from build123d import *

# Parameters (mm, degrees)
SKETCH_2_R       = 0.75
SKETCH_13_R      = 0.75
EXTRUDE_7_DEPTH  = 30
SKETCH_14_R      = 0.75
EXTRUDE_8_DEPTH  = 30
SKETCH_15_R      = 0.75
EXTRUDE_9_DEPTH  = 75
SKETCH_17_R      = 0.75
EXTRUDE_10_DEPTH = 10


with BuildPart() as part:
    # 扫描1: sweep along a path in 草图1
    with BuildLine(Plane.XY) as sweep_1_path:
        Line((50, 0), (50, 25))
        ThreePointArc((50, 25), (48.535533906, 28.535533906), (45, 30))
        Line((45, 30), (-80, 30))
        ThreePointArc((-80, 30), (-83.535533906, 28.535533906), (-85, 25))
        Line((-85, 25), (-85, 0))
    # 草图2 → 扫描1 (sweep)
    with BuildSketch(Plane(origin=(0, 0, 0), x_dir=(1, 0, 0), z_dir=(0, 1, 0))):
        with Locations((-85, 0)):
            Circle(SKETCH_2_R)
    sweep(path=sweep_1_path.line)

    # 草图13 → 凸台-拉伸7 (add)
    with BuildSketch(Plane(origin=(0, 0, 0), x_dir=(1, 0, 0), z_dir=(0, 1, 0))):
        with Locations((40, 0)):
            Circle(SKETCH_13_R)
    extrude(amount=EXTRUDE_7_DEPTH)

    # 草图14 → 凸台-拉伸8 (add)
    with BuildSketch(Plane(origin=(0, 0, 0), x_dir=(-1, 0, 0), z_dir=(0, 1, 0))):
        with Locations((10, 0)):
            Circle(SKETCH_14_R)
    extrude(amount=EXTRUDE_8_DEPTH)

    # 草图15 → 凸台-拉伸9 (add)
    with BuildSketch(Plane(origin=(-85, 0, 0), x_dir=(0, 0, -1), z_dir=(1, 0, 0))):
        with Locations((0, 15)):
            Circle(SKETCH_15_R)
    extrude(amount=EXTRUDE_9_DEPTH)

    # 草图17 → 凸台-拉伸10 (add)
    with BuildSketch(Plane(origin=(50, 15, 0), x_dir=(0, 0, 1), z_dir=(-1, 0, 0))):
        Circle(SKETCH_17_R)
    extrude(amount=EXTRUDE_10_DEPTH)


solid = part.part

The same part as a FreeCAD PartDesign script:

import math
import FreeCAD as App
import Part
import Sketcher
from FreeCAD import Vector
Q = App.Units.Quantity

doc = App.newDocument("Part")
params = doc.addObject("Spreadsheet::Sheet", "Params")
for row, (alias, value) in enumerate([
    ("sketch1_diameter", "1.5 mm"),
    ("sketch2_radius", "5 mm"),
    ("sketch2_width", "125 mm"),
    ("sketch2_height", "25 mm"),
    ("sketch3_diameter", "1.5 mm"),
    ("pad1_length", "30 mm"),
    ("sketch4_diameter", "1.5 mm"),
    ("pad2_length", "30 mm"),
    ("sketch5_diameter", "1.5 mm"),
    ("pad3_length", "75 mm"),
    ("sketch6_diameter", "1.5 mm"),
    ("pad4_length", "10 mm"),
], start=1):
    params.set(f"A{row}", alias)
    params.set(f"B{row}", "=" + value)
    params.setAlias(f"B{row}", alias)

body = doc.addObject("PartDesign::Body", "Body")

# Sketch on XZ plane
sketch1 = body.newObject("Sketcher::SketchObject", "Sketch")
sketch1.AttachmentSupport = (doc.getObject("XZ_Plane"), [""])
sketch1.MapMode = "FlatFace"
sketch1.addGeometry(Part.Circle(Vector(-85, 0, 0), Vector(0, 0, 1), 0.8), False)
sketch1.addConstraint(Sketcher.Constraint("PointOnObject", 0, 3, -1))
sketch1.addConstraint(Sketcher.Constraint("Diameter", 0, Q("1.5 mm")))
sketch1.addConstraint(Sketcher.Constraint("DistanceX", 0, 3, -1, 1, Q("85 mm")))
sketch1.setExpression("Constraints[1]", "Params.sketch1_diameter")

# Sketch on XY plane
sketch2 = body.newObject("Sketcher::SketchObject", "Sketch001")
sketch2.AttachmentSupport = (doc.getObject("XY_Plane"), [""])
sketch2.MapMode = "FlatFace"
sketch2.addGeometry(Part.LineSegment(Vector(50, 0, 0), Vector(50, 25, 0)), False)
sketch2.addGeometry(Part.ArcOfCircle(Part.Circle(Vector(45, 25, 0), Vector(0, 0, 1), 5), math.radians(0), math.radians(90)), False)
sketch2.addGeometry(Part.LineSegment(Vector(45, 30, 0), Vector(-80, 30, 0)), False)
sketch2.addGeometry(Part.ArcOfCircle(Part.Circle(Vector(-80, 25, 0), Vector(0, 0, 1), 5), math.radians(90), math.radians(180)), False)
sketch2.addGeometry(Part.LineSegment(Vector(-85, 25, 0), Vector(-85, 0, 0)), False)
sketch2.addConstraint(Sketcher.Constraint("Tangent", 0, 2, 1, 1))
sketch2.addConstraint(Sketcher.Constraint("Tangent", 1, 2, 2, 1))
sketch2.addConstraint(Sketcher.Constraint("Tangent", 2, 2, 3, 1))
sketch2.addConstraint(Sketcher.Constraint("Tangent", 3, 2, 4, 1))
sketch2.addConstraint(Sketcher.Constraint("Vertical", 0))
sketch2.addConstraint(Sketcher.Constraint("Horizontal", 2))
sketch2.addConstraint(Sketcher.Constraint("Vertical", 4))
sketch2.addConstraint(Sketcher.Constraint("Equal", 1, 3))
sketch2.addConstraint(Sketcher.Constraint("PointOnObject", 0, 1, -1))
sketch2.addConstraint(Sketcher.Constraint("PointOnObject", 4, 2, -1))
sketch2.addConstraint(Sketcher.Constraint("Radius", 1, Q("5 mm")))
sketch2.addConstraint(Sketcher.Constraint("DistanceX", 2, 2, 2, 1, Q("125 mm")))
sketch2.addConstraint(Sketcher.Constraint("DistanceY", 0, 1, 0, 2, Q("25 mm")))
sketch2.addConstraint(Sketcher.Constraint("DistanceX", -1, 1, 1, 3, Q("45 mm")))
sketch2.setExpression("Constraints[10]", "Params.sketch2_radius")
sketch2.setExpression("Constraints[11]", "Params.sketch2_width")
sketch2.setExpression("Constraints[12]", "Params.sketch2_height")
doc.recompute()

additivepipe = body.newObject("PartDesign::AdditivePipe", "AdditivePipe")
additivepipe.Profile = sketch1
additivepipe.Spine = (sketch2, ["Edge1", "Edge2", "Edge3", "Edge4", "Edge5"])

# Sketch on XZ plane
sketch3 = body.newObject("Sketcher::SketchObject", "Sketch002")
sketch3.AttachmentSupport = (doc.getObject("XZ_Plane"), [""])
sketch3.MapMode = "FlatFace"
sketch3.addGeometry(Part.Circle(Vector(40, 0, 0), Vector(0, 0, 1), 0.8), False)
sketch3.addConstraint(Sketcher.Constraint("PointOnObject", 0, 3, -1))
sketch3.addConstraint(Sketcher.Constraint("Diameter", 0, Q("1.5 mm")))
sketch3.addConstraint(Sketcher.Constraint("DistanceX", -1, 1, 0, 3, Q("40 mm")))
sketch3.setExpression("Constraints[1]", "Params.sketch3_diameter")
pad1 = body.newObject("PartDesign::Pad", "Pad")
pad1.Profile = sketch3
pad1.setExpression("Length", "Params.pad1_length")
pad1.Reversed = True

# Sketch on XZ plane
sketch4 = body.newObject("Sketcher::SketchObject", "Sketch003")
sketch4.AttachmentSupport = (doc.getObject("XZ_Plane"), [""])
sketch4.MapMode = "FlatFace"
sketch4.addGeometry(Part.Circle(Vector(-10, 0, 0), Vector(0, 0, 1), 0.8), False)
sketch4.addConstraint(Sketcher.Constraint("PointOnObject", 0, 3, -1))
sketch4.addConstraint(Sketcher.Constraint("Diameter", 0, Q("1.5 mm")))
sketch4.addConstraint(Sketcher.Constraint("DistanceX", 0, 3, -1, 1, Q("10 mm")))
sketch4.setExpression("Constraints[1]", "Params.sketch4_diameter")
pad2 = body.newObject("PartDesign::Pad", "Pad001")
pad2.Profile = sketch4
pad2.setExpression("Length", "Params.pad2_length")
pad2.Reversed = True

# Sketch on YZ plane
sketch5 = body.newObject("Sketcher::SketchObject", "Sketch004")
sketch5.AttachmentSupport = (doc.getObject("YZ_Plane"), [""])
sketch5.MapMode = "FlatFace"
sketch5.AttachmentOffset = App.Placement(Vector(0, 0, -85), App.Rotation())
sketch5.addGeometry(Part.Circle(Vector(15, 0, 0), Vector(0, 0, 1), 0.8), False)
sketch5.addConstraint(Sketcher.Constraint("PointOnObject", 0, 3, -1))
sketch5.addConstraint(Sketcher.Constraint("Diameter", 0, Q("1.5 mm")))
sketch5.addConstraint(Sketcher.Constraint("DistanceX", -1, 1, 0, 3, Q("15 mm")))
sketch5.setExpression("Constraints[1]", "Params.sketch5_diameter")
pad3 = body.newObject("PartDesign::Pad", "Pad002")
pad3.Profile = sketch5
pad3.setExpression("Length", "Params.pad3_length")

# Sketch on YZ plane
sketch6 = body.newObject("Sketcher::SketchObject", "Sketch005")
sketch6.AttachmentSupport = (doc.getObject("YZ_Plane"), [""])
sketch6.MapMode = "FlatFace"
sketch6.AttachmentOffset = App.Placement(Vector(0, 0, 50), App.Rotation())
sketch6.addGeometry(Part.Circle(Vector(15, 0, 0), Vector(0, 0, 1), 0.8), False)
sketch6.addConstraint(Sketcher.Constraint("PointOnObject", 0, 3, -1))
sketch6.addConstraint(Sketcher.Constraint("Diameter", 0, Q("1.5 mm")))
sketch6.addConstraint(Sketcher.Constraint("DistanceX", -1, 1, 0, 3, Q("15 mm")))
sketch6.setExpression("Constraints[1]", "Params.sketch6_diameter")
pad4 = body.newObject("PartDesign::Pad", "Pad003")
pad4.Profile = sketch6
pad4.setExpression("Length", "Params.pad4_length")
pad4.Reversed = True

doc.recompute()
